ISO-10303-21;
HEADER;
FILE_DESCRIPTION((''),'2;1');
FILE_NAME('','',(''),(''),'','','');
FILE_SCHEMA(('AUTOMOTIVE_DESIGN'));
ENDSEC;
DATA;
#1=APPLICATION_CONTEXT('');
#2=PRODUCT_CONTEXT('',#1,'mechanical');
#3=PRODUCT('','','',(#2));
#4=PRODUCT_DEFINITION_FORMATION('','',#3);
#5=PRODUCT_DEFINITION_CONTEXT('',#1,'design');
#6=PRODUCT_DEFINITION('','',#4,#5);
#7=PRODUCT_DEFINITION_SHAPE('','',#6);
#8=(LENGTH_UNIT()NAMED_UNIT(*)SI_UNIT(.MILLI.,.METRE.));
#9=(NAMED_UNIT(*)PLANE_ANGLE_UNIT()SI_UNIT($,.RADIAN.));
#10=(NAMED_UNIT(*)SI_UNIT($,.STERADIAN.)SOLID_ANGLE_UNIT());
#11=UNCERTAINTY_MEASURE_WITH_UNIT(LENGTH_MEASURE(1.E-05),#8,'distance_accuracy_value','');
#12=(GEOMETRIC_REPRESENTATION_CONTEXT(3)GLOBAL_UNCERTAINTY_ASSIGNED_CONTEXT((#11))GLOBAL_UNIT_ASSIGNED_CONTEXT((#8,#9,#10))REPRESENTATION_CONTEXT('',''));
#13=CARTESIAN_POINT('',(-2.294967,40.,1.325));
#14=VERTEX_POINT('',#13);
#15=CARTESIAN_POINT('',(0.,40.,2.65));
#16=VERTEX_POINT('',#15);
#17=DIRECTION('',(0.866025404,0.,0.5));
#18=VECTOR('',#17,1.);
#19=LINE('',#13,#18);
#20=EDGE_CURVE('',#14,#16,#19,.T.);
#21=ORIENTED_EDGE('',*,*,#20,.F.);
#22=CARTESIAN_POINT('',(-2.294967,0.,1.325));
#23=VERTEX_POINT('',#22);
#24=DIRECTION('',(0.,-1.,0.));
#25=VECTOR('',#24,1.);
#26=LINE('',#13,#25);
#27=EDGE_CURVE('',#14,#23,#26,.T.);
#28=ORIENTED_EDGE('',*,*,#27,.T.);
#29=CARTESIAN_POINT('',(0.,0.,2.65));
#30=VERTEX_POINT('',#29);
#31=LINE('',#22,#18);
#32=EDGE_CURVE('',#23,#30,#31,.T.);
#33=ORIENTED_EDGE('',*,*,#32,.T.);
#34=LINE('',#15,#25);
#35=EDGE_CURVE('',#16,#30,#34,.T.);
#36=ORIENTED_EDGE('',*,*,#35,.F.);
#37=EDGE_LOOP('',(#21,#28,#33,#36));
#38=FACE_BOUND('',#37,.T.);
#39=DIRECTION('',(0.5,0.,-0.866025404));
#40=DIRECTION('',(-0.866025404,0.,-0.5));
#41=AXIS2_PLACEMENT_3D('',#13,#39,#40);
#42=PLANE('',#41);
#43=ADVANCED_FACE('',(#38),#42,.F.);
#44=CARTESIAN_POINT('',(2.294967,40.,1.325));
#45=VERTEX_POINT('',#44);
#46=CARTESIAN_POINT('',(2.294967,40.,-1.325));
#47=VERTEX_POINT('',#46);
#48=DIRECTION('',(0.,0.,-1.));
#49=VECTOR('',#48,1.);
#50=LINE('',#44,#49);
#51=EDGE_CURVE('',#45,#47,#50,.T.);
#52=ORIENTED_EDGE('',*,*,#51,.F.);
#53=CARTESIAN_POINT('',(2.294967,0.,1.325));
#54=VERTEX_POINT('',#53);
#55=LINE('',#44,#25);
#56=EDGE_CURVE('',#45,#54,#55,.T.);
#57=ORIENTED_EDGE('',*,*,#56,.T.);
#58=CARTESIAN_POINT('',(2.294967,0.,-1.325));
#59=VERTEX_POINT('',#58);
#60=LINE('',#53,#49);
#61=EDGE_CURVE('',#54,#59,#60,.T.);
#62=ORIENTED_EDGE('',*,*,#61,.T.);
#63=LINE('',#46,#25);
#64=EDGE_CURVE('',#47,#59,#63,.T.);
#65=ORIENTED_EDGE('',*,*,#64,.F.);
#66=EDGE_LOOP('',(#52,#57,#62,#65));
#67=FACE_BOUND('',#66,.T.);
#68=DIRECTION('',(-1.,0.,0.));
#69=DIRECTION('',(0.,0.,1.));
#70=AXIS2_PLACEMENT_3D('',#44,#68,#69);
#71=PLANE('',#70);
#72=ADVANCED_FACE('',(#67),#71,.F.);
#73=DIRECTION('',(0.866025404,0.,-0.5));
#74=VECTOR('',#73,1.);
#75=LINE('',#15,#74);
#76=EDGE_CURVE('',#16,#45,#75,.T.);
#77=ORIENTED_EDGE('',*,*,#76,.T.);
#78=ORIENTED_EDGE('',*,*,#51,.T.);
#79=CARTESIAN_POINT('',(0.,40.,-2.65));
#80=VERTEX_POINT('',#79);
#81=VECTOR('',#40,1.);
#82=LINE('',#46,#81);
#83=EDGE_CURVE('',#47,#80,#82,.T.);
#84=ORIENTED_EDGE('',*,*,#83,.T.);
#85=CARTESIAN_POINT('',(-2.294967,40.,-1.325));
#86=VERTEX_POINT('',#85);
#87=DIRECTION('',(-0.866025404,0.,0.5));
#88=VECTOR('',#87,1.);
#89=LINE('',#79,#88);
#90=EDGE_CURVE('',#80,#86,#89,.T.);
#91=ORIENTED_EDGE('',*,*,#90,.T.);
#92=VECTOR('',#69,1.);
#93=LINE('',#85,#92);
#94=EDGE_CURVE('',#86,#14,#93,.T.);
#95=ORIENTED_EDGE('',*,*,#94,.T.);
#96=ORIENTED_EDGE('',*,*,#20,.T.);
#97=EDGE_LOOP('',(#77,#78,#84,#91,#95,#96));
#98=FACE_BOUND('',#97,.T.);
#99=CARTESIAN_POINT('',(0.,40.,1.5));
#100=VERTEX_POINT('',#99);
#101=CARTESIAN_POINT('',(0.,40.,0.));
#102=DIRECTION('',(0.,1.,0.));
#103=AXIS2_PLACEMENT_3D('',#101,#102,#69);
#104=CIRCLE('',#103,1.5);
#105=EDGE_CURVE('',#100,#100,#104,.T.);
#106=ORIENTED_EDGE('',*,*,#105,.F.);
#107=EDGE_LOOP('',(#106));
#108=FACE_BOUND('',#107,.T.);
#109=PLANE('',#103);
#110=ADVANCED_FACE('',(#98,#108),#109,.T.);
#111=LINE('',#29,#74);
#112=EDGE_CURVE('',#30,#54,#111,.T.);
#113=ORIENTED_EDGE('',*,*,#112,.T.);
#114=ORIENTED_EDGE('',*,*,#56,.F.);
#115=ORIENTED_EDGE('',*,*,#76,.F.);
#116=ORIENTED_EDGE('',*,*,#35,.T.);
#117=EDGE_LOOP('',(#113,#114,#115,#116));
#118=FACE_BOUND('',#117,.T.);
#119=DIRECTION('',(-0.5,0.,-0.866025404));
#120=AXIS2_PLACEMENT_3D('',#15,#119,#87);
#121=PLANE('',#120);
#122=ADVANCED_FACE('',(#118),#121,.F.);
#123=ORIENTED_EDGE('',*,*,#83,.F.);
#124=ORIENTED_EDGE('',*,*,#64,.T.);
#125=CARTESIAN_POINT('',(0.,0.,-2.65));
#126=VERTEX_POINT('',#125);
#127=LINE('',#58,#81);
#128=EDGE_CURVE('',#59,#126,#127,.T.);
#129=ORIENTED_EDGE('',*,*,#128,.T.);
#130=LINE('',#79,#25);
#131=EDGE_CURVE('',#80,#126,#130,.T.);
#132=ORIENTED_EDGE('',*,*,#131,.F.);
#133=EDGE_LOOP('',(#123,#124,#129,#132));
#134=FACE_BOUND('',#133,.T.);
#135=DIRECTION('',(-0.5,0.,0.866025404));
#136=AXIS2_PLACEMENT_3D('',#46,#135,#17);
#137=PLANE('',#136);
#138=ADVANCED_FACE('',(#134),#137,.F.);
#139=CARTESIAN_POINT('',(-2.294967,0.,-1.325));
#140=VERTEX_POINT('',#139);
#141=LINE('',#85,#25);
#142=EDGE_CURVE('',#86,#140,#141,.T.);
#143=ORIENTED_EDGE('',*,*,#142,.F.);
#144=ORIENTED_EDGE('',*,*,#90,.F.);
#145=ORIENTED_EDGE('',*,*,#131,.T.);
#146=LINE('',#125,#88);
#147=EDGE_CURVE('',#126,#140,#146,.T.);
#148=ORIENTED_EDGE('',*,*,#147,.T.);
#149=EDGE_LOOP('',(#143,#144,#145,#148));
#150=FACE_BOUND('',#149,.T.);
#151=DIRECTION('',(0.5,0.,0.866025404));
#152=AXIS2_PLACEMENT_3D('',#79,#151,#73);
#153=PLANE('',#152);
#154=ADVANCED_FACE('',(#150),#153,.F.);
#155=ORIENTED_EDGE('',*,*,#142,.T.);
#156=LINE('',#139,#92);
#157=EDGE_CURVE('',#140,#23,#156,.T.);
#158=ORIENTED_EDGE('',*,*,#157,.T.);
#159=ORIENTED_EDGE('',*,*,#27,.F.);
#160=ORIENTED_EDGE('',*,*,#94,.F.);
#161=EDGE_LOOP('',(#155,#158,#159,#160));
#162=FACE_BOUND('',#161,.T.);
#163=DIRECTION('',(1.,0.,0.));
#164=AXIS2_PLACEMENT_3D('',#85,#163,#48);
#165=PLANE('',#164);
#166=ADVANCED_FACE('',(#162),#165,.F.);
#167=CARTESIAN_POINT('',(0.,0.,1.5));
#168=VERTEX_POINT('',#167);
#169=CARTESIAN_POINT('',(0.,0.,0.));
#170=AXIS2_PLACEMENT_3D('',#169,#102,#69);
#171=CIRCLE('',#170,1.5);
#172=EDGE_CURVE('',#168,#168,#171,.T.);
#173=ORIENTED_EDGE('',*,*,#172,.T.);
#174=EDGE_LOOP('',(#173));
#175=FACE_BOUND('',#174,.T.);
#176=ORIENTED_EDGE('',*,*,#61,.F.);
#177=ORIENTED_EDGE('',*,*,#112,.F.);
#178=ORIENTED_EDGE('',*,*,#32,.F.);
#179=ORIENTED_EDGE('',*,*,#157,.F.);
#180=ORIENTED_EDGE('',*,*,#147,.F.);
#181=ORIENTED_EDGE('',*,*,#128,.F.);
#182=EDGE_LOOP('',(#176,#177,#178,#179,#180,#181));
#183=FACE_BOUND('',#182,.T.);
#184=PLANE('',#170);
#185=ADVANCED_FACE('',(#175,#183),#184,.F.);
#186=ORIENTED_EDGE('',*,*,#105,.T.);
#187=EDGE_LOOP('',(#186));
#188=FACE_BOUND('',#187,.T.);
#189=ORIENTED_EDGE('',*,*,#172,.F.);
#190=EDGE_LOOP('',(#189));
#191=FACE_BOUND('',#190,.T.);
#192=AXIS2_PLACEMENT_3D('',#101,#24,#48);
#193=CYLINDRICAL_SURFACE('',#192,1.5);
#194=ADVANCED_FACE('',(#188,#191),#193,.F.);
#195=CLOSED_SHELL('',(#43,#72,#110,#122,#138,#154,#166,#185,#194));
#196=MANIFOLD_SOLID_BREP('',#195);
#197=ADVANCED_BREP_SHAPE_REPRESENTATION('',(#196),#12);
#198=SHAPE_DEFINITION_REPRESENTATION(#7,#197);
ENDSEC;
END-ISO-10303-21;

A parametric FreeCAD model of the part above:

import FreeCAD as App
import Part
import Sketcher

V = App.Vector
Q = App.Units.Quantity

doc = App.newDocument("Part")
body = doc.addObject("PartDesign::Body", "Body")

# Sketch on XZ plane
sketch1 = body.newObject("Sketcher::SketchObject", "Sketch")
sketch1.AttachmentSupport = (doc.getObject("XZ_Plane"), [""])
sketch1.MapMode = "FlatFace"
sketch1.addGeometry([
    Part.LineSegment(V(0, -2.6, 0), V(-2.3, -1.3, 0)),  # 0
    Part.LineSegment(V(-2.3, -1.3, 0), V(-2.3, 1.3, 0)),  # 1
    Part.LineSegment(V(-2.3, 1.3, 0), V(0, 2.6, 0)),  # 2
    Part.LineSegment(V(0, 2.6, 0), V(2.3, 1.3, 0)),  # 3
    Part.LineSegment(V(2.3, 1.3, 0), V(2.3, -1.3, 0)),  # 4
    Part.LineSegment(V(2.3, -1.3, 0), V(0, -2.6, 0)),  # 5
    Part.Circle(V(0, 0, 0), V(0, 0, 1), 1.5),  # 6
], False)
sketch1.addConstraint([
    Sketcher.Constraint("Coincident", 0, 2, 1, 1),
    Sketcher.Constraint("Coincident", 1, 2, 2, 1),
    Sketcher.Constraint("Coincident", 2, 2, 3, 1),
    Sketcher.Constraint("Coincident", 3, 2, 4, 1),
    Sketcher.Constraint("Coincident", 4, 2, 5, 1),
    Sketcher.Constraint("Coincident", 5, 2, 0, 1),
    Sketcher.Constraint("Vertical", 1),
    Sketcher.Constraint("Vertical", 4),
    Sketcher.Constraint("Coincident", 6, 3, -1, 1),
    Sketcher.Constraint("Symmetric", 0, 2, 3, 2, -1, 1),
    Sketcher.Constraint("Symmetric", 2, 2, 5, 2, -1, 1),
    Sketcher.Constraint("PointOnObject", 2, 2, -2),
    Sketcher.Constraint("Parallel", 2, 5),
    Sketcher.Constraint("Horizontal", 1, 2, 3, 2),
    Sketcher.Constraint("Diameter", 6, Q("3 mm")),
    Sketcher.Constraint("Angle", 0, Q("150 deg")),
    Sketcher.Constraint("DistanceY", 1, 1, 1, 2, Q("2.65 mm")),
    Sketcher.Constraint("Distance", 0, Q("2.65 mm")),
])
pad1 = body.newObject("PartDesign::Pad", "Pad")
pad1.Profile = sketch1
pad1.Length = 40
pad1.Reversed = True

doc.recompute()
